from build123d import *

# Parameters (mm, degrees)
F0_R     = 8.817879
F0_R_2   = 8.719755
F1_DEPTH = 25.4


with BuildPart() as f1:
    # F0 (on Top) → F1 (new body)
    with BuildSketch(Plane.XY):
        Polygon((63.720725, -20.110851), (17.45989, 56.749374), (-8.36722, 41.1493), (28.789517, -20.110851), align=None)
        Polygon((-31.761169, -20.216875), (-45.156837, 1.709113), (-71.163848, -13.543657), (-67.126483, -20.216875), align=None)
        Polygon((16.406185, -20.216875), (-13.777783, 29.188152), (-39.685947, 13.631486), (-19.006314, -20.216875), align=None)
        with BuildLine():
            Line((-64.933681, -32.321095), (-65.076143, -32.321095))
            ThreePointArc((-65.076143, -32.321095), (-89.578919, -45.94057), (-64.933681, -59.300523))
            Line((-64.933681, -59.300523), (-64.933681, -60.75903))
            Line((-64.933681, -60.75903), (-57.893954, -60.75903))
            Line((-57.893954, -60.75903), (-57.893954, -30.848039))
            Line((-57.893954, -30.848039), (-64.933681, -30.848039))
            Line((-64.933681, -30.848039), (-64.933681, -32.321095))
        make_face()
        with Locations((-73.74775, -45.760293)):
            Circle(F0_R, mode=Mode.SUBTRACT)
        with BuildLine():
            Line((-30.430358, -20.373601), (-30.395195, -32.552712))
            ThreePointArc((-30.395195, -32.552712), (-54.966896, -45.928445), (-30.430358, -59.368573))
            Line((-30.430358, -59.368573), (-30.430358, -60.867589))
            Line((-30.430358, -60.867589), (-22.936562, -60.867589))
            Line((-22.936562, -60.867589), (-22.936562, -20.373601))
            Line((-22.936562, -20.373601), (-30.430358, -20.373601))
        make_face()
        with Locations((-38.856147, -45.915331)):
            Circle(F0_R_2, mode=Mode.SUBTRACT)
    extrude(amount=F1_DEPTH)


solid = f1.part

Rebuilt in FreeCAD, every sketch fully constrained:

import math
import FreeCAD as App
import Part
import Sketcher
from FreeCAD import Vector
Q = App.Units.Quantity

doc = App.newDocument("Part")
body = doc.addObject("PartDesign::Body", "Body")
body.AllowCompound = True

# Sketch on XY plane
sketch1 = body.newObject("Sketcher::SketchObject", "Sketch")
sketch1.AttachmentSupport = (doc.getObject("XY_Plane"), [""])
sketch1.MapMode = "FlatFace"
sketch1.addGeometry([
    Part.LineSegment(Vector(63.720725, -20.110851, 0), Vector(17.45989, 56.749374, 0)),  # 0
    Part.LineSegment(Vector(17.45989, 56.749374, 0), Vector(-8.36722, 41.1493, 0)),  # 1
    Part.LineSegment(Vector(-8.36722, 41.1493, 0), Vector(28.789517, -20.110851, 0)),  # 2
    Part.LineSegment(Vector(28.789517, -20.110851, 0), Vector(63.720725, -20.110851, 0)),  # 3
    Part.LineSegment(Vector(-31.761169, -20.216875, 0), Vector(-45.156837, 1.709113, 0)),  # 4
    Part.LineSegment(Vector(-45.156837, 1.709113, 0), Vector(-71.163848, -13.543657, 0)),  # 5
    Part.LineSegment(Vector(-71.163848, -13.543657, 0), Vector(-67.126483, -20.216875, 0)),  # 6
    Part.LineSegment(Vector(-67.126483, -20.216875, 0), Vector(-31.761169, -20.216875, 0)),  # 7
    Part.LineSegment(Vector(16.406185, -20.216875, 0), Vector(-13.777783, 29.188152, 0)),  # 8
    Part.LineSegment(Vector(-13.777783, 29.188152, 0), Vector(-39.685947, 13.631486, 0)),  # 9
    Part.LineSegment(Vector(-39.685947, 13.631486, 0), Vector(-19.006314, -20.216875, 0)),  # 10
    Part.LineSegment(Vector(-19.006314, -20.216875, 0), Vector(16.406185, -20.216875, 0)),  # 11
    Part.LineSegment(Vector(-64.933681, -32.321095, 0), Vector(-65.076143, -32.321095, 0)),  # 12
    Part.ArcOfCircle(Part.Circle(Vector(-73.589378, -45.856138, 0), Vector(0, 0, 1), 15.989764), math.radians(57.83104), math.radians(302.774043)),  # 13
    Part.LineSegment(Vector(-64.933681, -59.300523, 0), Vector(-64.933681, -60.75903, 0)),  # 14
    Part.LineSegment(Vector(-64.933681, -60.75903, 0), Vector(-57.893954, -60.75903, 0)),  # 15
    Part.LineSegment(Vector(-57.893954, -60.75903, 0), Vector(-57.893954, -30.848039, 0)),  # 16
    Part.LineSegment(Vector(-57.893954, -30.848039, 0), Vector(-64.933681, -30.848039, 0)),  # 17
    Part.LineSegment(Vector(-64.933681, -30.848039, 0), Vector(-64.933681, -32.321095, 0)),  # 18
    Part.Circle(Vector(-73.74775, -45.760293, 0), Vector(0, 0, 1), 8.817879),  # 19
    Part.LineSegment(Vector(-30.430358, -20.373601, 0), Vector(-30.395195, -32.552712, 0)),  # 20
    Part.ArcOfCircle(Part.Circle(Vector(-39.029094, -45.949344, 0), Vector(0, 0, 1), 15.937816), math.radians(57.198916), math.radians(302.650823)),  # 21
    Part.LineSegment(Vector(-30.430358, -59.368573, 0), Vector(-30.430358, -60.867589, 0)),  # 22
    Part.LineSegment(Vector(-30.430358, -60.867589, 0), Vector(-22.936562, -60.867589, 0)),  # 23
    Part.LineSegment(Vector(-22.936562, -60.867589, 0), Vector(-22.936562, -20.373601, 0)),  # 24
    Part.LineSegment(Vector(-22.936562, -20.373601, 0), Vector(-30.430358, -20.373601, 0)),  # 25
    Part.Circle(Vector(-38.856147, -45.915331, 0), Vector(0, 0, 1), 8.719755),  # 26
], False)
sketch1.addConstraint([
    Sketcher.Constraint("Coincident", 0, 2, 1, 1),
    Sketcher.Constraint("Coincident", 1, 2, 2, 1),
    Sketcher.Constraint("Coincident", 2, 2, 3, 1),
    Sketcher.Constraint("Coincident", 3, 2, 0, 1),
    Sketcher.Constraint("Coincident", 4, 2, 5, 1),
    Sketcher.Constraint("Coincident", 5, 2, 6, 1),
    Sketcher.Constraint("Coincident", 6, 2, 7, 1),
    Sketcher.Constraint("Coincident", 7, 2, 4, 1),
    Sketcher.Constraint("Coincident", 8, 2, 9, 1),
    Sketcher.Constraint("Coincident", 9, 2, 10, 1),
    Sketcher.Constraint("Coincident", 10, 2, 11, 1),
    Sketcher.Constraint("Coincident", 11, 2, 8, 1),
    Sketcher.Constraint("Coincident", 12, 2, 13, 1),
    Sketcher.Constraint("Coincident", 13, 2, 14, 1),
    Sketcher.Constraint("Coincident", 14, 2, 15, 1),
    Sketcher.Constraint("Coincident", 15, 2, 16, 1),
    Sketcher.Constraint("Coincident", 16, 2, 17, 1),
    Sketcher.Constraint("Coincident", 17, 2, 18, 1),
    Sketcher.Constraint("Coincident", 18, 2, 12, 1),
    Sketcher.Constraint("Coincident", 20, 2, 21, 1),
    Sketcher.Constraint("Coincident", 21, 2, 22, 1),
    Sketcher.Constraint("Coincident", 22, 2, 23, 1),
    Sketcher.Constraint("Coincident", 23, 2, 24, 1),
    Sketcher.Constraint("Coincident", 24, 2, 25, 1),
    Sketcher.Constraint("Coincident", 25, 2, 20, 1),
    Sketcher.Constraint("Horizontal", 3),
    Sketcher.Constraint("Horizontal", 7),
    Sketcher.Constraint("Horizontal", 11),
    Sketcher.Constraint("Horizontal", 12),
    Sketcher.Constraint("Vertical", 14),
    Sketcher.Constraint("Horizontal", 15),
    Sketcher.Constraint("Vertical", 16),
    Sketcher.Constraint("Horizontal", 17),
    Sketcher.Constraint("Vertical", 18),
    Sketcher.Constraint("Vertical", 22),
    Sketcher.Constraint("Horizontal", 23),
    Sketcher.Constraint("Vertical", 24),
    Sketcher.Constraint("Horizontal", 25),
    Sketcher.Constraint("Parallel", 4, 8),
    Sketcher.Constraint("Parallel", 8, 10),
    Sketcher.Constraint("Horizontal", 7, 2, 10, 2),
    Sketcher.Constraint("Vertical", 14, 2, 17, 2),
    Sketcher.Constraint("Vertical", 22, 2, 25, 2),
    Sketcher.Constraint("Diameter", 26, 17.43951),
    Sketcher.Constraint("Diameter", 19, 17.635758),
    Sketcher.Constraint("DistanceX", 11, 1, 11, 2, 35.412499),
    Sketcher.Constraint("Radius", 13, 15.989764),
    Sketcher.Constraint("Radius", 21, 15.937816),
    Sketcher.Constraint("DistanceX", 12, 2, 12, 1, 0.142462),
    Sketcher.Constraint("DistanceY", 16, 1, 16, 2, 29.910991),
    Sketcher.Constraint("DistanceY", 24, 1, 24, 2, 40.493988),
    Sketcher.Constraint("DistanceY", -1, 1, 1, 2, 41.1493),
    Sketcher.Constraint("DistanceY", 24, 2, -1, 1, 20.373601),
    Sketcher.Constraint("DistanceX", 19, 3, 5, 2, 2.583902),
    Sketcher.Constraint("DistanceX", 5, 2, 26, 3, 32.307701),
    Sketcher.Constraint("DistanceX", 8, 2, 2, 2, 42.5673),
    Sketcher.Constraint("DistanceX", 5, 2, 9, 2, 31.477901),
    Sketcher.Constraint("DistanceY", 13, 3, 16, 2, 15.008099),
    Sketcher.Constraint("DistanceX", 6, 2, 17, 2, 2.192802),
    Sketcher.Constraint("DistanceX", 21, 3, 20, 2, 8.633899),
    Sketcher.Constraint("Distance", 0, 89.708188),
    Sketcher.Constraint("Distance", 4, 25.694219),
    Sketcher.Constraint("Distance", 5, 30.149819),
    Sketcher.Constraint("Distance", 20, 12.179162),
    Sketcher.Constraint("DistanceX", 3, 1, 3, 2, 34.931208),
    Sketcher.Constraint("DistanceX", 7, 1, 7, 2, 35.365314),
    Sketcher.Constraint("DistanceX", 15, 1, 15, 2, 7.039727),
    Sketcher.Constraint("DistanceX", 23, 1, 23, 2, 7.493796),
    Sketcher.Constraint("DistanceY", 14, 2, 14, 1, 1.458507),
    Sketcher.Constraint("DistanceY", 22, 2, 22, 1, 1.499016),
    Sketcher.Constraint("DistanceY", 13, 3, -1, 1, 45.856138),
    Sketcher.Constraint("DistanceX", 19, 3, -1, 1, 73.74775),
    Sketcher.Constraint("DistanceY", 26, 3, -1, 1, 45.915331),
    Sketcher.Constraint("DistanceX", -1, 1, 0, 2, 17.45989),
    Sketcher.Constraint("DistanceX", 1, 2, -1, 1, 8.36722),
    Sketcher.Constraint("DistanceY", 2, 2, -1, 1, 20.110851),
    Sketcher.Constraint("DistanceX", 7, 2, -1, 1, 31.761169),
    Sketcher.Constraint("DistanceY", -1, 1, 8, 2, 29.188152),
    Sketcher.Constraint("DistanceX", 23, 2, -1, 1, 22.936562),
    Sketcher.Constraint("DistanceY", 21, 3, 19, 3, 0.189051),
    Sketcher.Constraint("DistanceY", 21, 3, 0, 2, 102.698718),
    Sketcher.Constraint("DistanceX", 4, 2, 26, 3, 6.30069),
    Sketcher.Constraint("DistanceY", 13, 3, 4, 2, 47.565251),
])
pad1 = body.newObject("PartDesign::Pad", "Pad")
pad1.Profile = sketch1
pad1.Length = Q("1 in")

doc.recompute()
